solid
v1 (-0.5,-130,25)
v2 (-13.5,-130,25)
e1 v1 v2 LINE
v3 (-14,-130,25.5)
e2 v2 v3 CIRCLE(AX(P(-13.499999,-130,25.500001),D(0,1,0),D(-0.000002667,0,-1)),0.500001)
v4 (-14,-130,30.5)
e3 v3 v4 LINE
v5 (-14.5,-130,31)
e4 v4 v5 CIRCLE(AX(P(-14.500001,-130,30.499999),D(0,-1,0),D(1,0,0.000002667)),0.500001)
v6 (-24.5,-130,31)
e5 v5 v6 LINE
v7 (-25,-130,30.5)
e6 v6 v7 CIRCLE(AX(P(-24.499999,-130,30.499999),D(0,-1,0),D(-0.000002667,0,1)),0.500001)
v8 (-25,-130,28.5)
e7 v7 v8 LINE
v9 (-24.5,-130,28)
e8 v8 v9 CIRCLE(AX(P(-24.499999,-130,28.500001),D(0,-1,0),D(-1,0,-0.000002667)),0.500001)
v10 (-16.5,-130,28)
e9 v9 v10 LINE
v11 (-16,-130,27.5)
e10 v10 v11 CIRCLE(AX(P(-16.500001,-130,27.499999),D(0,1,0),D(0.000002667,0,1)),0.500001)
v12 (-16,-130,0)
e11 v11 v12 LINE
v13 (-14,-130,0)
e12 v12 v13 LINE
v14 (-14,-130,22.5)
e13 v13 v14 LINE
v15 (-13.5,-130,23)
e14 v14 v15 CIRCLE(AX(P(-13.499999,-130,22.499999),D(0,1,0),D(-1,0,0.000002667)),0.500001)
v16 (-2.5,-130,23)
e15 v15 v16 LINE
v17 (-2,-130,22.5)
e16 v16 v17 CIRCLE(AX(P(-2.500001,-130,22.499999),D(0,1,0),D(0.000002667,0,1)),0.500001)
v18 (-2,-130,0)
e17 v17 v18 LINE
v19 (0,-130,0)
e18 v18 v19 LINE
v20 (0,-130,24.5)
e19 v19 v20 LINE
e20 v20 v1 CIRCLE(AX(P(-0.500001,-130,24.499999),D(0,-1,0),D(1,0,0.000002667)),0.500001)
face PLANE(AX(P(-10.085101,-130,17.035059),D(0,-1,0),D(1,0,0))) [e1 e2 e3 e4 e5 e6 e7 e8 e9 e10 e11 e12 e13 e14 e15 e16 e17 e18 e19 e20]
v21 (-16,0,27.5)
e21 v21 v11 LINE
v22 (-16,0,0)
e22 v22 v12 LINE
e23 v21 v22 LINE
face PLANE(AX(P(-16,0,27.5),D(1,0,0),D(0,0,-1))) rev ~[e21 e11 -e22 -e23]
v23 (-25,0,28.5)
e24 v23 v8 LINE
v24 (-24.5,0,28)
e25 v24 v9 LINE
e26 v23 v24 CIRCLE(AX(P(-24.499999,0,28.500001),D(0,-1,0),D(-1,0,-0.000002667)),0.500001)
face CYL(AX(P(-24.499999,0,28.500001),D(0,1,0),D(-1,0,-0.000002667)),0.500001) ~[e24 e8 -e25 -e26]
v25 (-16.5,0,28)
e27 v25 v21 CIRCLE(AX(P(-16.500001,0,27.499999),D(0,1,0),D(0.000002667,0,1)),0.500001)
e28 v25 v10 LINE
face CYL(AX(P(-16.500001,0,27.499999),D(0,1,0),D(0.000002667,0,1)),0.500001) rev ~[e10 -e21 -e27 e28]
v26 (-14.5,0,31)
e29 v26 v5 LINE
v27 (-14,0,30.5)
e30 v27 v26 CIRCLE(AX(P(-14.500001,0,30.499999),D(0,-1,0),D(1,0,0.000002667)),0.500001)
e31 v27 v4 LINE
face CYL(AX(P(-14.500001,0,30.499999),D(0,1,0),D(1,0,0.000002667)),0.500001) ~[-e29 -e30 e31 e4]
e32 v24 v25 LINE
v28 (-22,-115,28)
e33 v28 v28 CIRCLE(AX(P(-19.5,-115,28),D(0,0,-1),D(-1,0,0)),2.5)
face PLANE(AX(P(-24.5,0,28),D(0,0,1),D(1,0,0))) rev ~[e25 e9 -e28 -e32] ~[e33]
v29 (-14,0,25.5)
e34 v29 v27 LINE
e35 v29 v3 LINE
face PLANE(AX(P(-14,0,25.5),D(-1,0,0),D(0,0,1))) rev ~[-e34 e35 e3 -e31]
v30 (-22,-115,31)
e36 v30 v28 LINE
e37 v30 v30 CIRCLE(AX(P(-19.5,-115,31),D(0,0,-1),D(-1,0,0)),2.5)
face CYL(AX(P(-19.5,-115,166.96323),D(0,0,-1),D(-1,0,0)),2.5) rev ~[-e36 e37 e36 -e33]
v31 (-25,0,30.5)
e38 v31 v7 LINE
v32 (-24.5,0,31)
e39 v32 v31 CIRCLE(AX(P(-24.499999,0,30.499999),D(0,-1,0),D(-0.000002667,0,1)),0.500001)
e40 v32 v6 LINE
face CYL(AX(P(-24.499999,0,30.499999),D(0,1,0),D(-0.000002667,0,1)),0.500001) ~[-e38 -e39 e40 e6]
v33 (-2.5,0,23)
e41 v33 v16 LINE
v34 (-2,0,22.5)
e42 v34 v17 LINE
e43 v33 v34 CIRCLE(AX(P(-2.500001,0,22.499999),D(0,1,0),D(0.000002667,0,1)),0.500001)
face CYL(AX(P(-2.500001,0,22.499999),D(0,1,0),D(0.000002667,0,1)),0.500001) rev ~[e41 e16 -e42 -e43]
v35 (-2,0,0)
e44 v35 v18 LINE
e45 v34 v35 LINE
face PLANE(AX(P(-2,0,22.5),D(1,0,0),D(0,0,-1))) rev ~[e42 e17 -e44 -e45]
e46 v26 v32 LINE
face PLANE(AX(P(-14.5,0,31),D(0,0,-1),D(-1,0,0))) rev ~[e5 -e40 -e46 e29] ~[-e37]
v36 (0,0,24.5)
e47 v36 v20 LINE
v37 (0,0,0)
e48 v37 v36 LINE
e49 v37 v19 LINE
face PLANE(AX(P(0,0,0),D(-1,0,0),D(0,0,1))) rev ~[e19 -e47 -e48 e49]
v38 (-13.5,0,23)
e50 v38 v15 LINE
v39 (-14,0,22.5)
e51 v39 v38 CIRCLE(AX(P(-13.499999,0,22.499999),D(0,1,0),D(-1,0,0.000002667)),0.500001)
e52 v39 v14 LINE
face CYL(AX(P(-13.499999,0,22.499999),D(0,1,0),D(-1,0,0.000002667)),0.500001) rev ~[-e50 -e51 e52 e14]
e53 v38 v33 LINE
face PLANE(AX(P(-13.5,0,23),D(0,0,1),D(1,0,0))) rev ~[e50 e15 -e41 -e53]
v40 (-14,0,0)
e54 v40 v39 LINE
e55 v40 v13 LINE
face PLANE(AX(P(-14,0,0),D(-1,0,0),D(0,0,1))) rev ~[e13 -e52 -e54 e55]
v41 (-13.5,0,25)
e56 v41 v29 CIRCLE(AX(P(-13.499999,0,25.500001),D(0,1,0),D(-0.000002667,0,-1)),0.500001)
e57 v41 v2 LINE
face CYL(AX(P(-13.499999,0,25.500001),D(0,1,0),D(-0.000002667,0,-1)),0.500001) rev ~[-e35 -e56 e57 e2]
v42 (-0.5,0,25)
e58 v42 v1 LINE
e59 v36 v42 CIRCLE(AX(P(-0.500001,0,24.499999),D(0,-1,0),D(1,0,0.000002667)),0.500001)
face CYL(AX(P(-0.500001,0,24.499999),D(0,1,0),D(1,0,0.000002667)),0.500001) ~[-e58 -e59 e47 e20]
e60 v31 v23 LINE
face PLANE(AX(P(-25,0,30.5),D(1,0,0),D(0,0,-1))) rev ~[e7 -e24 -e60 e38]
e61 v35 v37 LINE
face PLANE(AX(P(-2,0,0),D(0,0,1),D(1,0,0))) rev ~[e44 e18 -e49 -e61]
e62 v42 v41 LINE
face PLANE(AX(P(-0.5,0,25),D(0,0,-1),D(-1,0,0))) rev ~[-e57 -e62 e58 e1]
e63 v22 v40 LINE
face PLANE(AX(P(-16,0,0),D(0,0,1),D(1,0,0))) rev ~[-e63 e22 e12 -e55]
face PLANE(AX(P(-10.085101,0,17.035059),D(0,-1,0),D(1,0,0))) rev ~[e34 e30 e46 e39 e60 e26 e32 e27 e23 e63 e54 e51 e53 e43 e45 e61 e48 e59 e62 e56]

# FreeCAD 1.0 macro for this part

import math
import FreeCAD as App
import Part
import Sketcher

V = App.Vector

doc = App.newDocument("Part")
body = doc.addObject("PartDesign::Body", "Body")

sketch1 = body.newObject("Sketcher::SketchObject", "Sketch")
sketch1.AttachmentSupport = (doc.getObject("XZ_Plane"), [""])
sketch1.MapMode = "FlatFace"
sketch1.addGeometry(Part.LineSegment(V(-2, 0, 0), V(0, 0, 0)), False)
sketch1.addGeometry(Part.LineSegment(V(0, 0, 0), V(0, 24.5, 0)), False)
sketch1.addGeometry(Part.ArcOfCircle(Part.Circle(V(-0.500001, 24.499999, 0), V(0, 0, 1), 0.500001), math.radians(0.000153), math.radians(89.999847)), False)
sketch1.addGeometry(Part.LineSegment(V(-0.5, 25, 0), V(-13.5, 25, 0)), False)
sketch1.addGeometry(Part.ArcOfCircle(Part.Circle(V(-13.499999, 25.500001, 0), V(0, 0, 1), 0.500001), math.radians(-179.999847), math.radians(-90.000153)), False)
sketch1.addGeometry(Part.LineSegment(V(-14, 25.5, 0), V(-14, 30.5, 0)), False)
sketch1.addGeometry(Part.ArcOfCircle(Part.Circle(V(-14.500001, 30.499999, 0), V(0, 0, 1), 0.500001), math.radians(0.000153), math.radians(89.999847)), False)
sketch1.addGeometry(Part.LineSegment(V(-14.5, 31, 0), V(-24.5, 31, 0)), False)
sketch1.addGeometry(Part.ArcOfCircle(Part.Circle(V(-24.499999, 30.499999, 0), V(0, 0, 1), 0.500001), math.radians(90.000153), math.radians(179.999847)), False)
sketch1.addGeometry(Part.LineSegment(V(-25, 30.5, 0), V(-25, 28.5, 0)), False)
sketch1.addGeometry(Part.ArcOfCircle(Part.Circle(V(-24.499999, 28.500001, 0), V(0, 0, 1), 0.500001), math.radians(-179.999847), math.radians(-90.000153)), False)
sketch1.addGeometry(Part.LineSegment(V(-24.5, 28, 0), V(-16.5, 28, 0)), False)
sketch1.addGeometry(Part.ArcOfCircle(Part.Circle(V(-16.500001, 27.499999, 0), V(0, 0, 1), 0.500001), math.radians(0.000153), math.radians(89.999847)), False)
sketch1.addGeometry(Part.LineSegment(V(-16, 27.5, 0), V(-16, 0, 0)), False)
sketch1.addGeometry(Part.LineSegment(V(-16, 0, 0), V(-14, 0, 0)), False)
sketch1.addGeometry(Part.LineSegment(V(-14, 0, 0), V(-14, 22.5, 0)), False)
sketch1.addGeometry(Part.ArcOfCircle(Part.Circle(V(-13.499999, 22.499999, 0), V(0, 0, 1), 0.500001), math.radians(90.000153), math.radians(179.999847)), False)
sketch1.addGeometry(Part.LineSegment(V(-13.5, 23, 0), V(-2.5, 23, 0)), False)
sketch1.addGeometry(Part.ArcOfCircle(Part.Circle(V(-2.500001, 22.499999, 0), V(0, 0, 1), 0.500001), math.radians(0.000153), math.radians(89.999847)), False)
sketch1.addGeometry(Part.LineSegment(V(-2, 22.5, 0), V(-2, 0, 0)), False)
sketch1.addConstraint(Sketcher.Constraint("Coincident", 0, 2, 1, 1))
sketch1.addConstraint(Sketcher.Constraint("Coincident", 1, 2, 2, 1))
sketch1.addConstraint(Sketcher.Constraint("Coincident", 2, 2, 3, 1))
sketch1.addConstraint(Sketcher.Constraint("Coincident", 3, 2, 4, 2))
sketch1.addConstraint(Sketcher.Constraint("Coincident", 4, 1, 5, 1))
sketch1.addConstraint(Sketcher.Constraint("Coincident", 5, 2, 6, 1))
sketch1.addConstraint(Sketcher.Constraint("Coincident", 6, 2, 7, 1))
sketch1.addConstraint(Sketcher.Constraint("Coincident", 7, 2, 8, 1))
sketch1.addConstraint(Sketcher.Constraint("Coincident", 8, 2, 9, 1))
sketch1.addConstraint(Sketcher.Constraint("Coincident", 9, 2, 10, 1))
sketch1.addConstraint(Sketcher.Constraint("Coincident", 10, 2, 11, 1))
sketch1.addConstraint(Sketcher.Constraint("Coincident", 11, 2, 12, 2))
sketch1.addConstraint(Sketcher.Constraint("Coincident", 12, 1, 13, 1))
sketch1.addConstraint(Sketcher.Constraint("Coincident", 13, 2, 14, 1))
sketch1.addConstraint(Sketcher.Constraint("Coincident", 14, 2, 15, 1))
sketch1.addConstraint(Sketcher.Constraint("Coincident", 15, 2, 16, 2))
sketch1.addConstraint(Sketcher.Constraint("Coincident", 16, 1, 17, 1))
sketch1.addConstraint(Sketcher.Constraint("Coincident", 17, 2, 18, 2))
sketch1.addConstraint(Sketcher.Constraint("Coincident", 18, 1, 19, 1))
sketch1.addConstraint(Sketcher.Constraint("Coincident", 19, 2, 0, 1))
sketch1.addConstraint(Sketcher.Constraint("Horizontal", 0))
sketch1.addConstraint(Sketcher.Constraint("Vertical", 1))
sketch1.addConstraint(Sketcher.Constraint("Horizontal", 3))
sketch1.addConstraint(Sketcher.Constraint("Vertical", 5))
sketch1.addConstraint(Sketcher.Constraint("Horizontal", 7))
sketch1.addConstraint(Sketcher.Constraint("Vertical", 9))
sketch1.addConstraint(Sketcher.Constraint("Horizontal", 11))
sketch1.addConstraint(Sketcher.Constraint("Vertical", 13))
sketch1.addConstraint(Sketcher.Constraint("Horizontal", 14))
sketch1.addConstraint(Sketcher.Constraint("Vertical", 15))
sketch1.addConstraint(Sketcher.Constraint("Horizontal", 17))
sketch1.addConstraint(Sketcher.Constraint("Vertical", 19))
sketch1.addConstraint(Sketcher.Constraint("Coincident", 0, 2, -1, 1))
sketch1.addConstraint(Sketcher.Constraint("Equal", 2, 4))
sketch1.addConstraint(Sketcher.Constraint("Equal", 4, 6))
sketch1.addConstraint(Sketcher.Constraint("Equal", 6, 8))
sketch1.addConstraint(Sketcher.Constraint("Equal", 8, 10))
sketch1.addConstraint(Sketcher.Constraint("Equal", 10, 12))
sketch1.addConstraint(Sketcher.Constraint("Equal", 12, 16))
sketch1.addConstraint(Sketcher.Constraint("Equal", 16, 18))
sketch1.addConstraint(Sketcher.Constraint("PointOnObject", 13, 2, -1))
sketch1.addConstraint(Sketcher.Constraint("Horizontal", 2, 3, 1, 2))
sketch1.addConstraint(Sketcher.Constraint("Horizontal", 8, 3, 5, 2))
sketch1.addConstraint(Sketcher.Constraint("Horizontal", 5, 2, 8, 2))
sketch1.addConstraint(Sketcher.Constraint("Horizontal", 10, 3, 9, 2))
sketch1.addConstraint(Sketcher.Constraint("Horizontal", 18, 3, 15, 2))
sketch1.addConstraint(Sketcher.Constraint("Horizontal", 15, 2, 18, 1))
sketch1.addConstraint(Sketcher.Constraint("Vertical", 4, 3, 16, 3))
sketch1.addConstraint(Sketcher.Constraint("Vertical", 16, 3, 3, 2))
sketch1.addConstraint(Sketcher.Constraint("Vertical", 10, 3, 7, 2))
sketch1.addConstraint(Sketcher.Constraint("Vertical", 7, 2, 10, 2))
sketch1.addConstraint(Sketcher.Constraint("Vertical", 12, 3, 11, 2))
sketch1.addConstraint(Sketcher.Constraint("Vertical", 3, 2, 16, 1))
sketch1.addConstraint(Sketcher.Constraint("Vertical", 18, 3, 17, 2))
sketch1.addConstraint(Sketcher.Constraint("Equal", 0, 14))
sketch1.addConstraint(Sketcher.Constraint("Equal", 14, 9))
sketch1.addConstraint(Sketcher.Constraint("Radius", 2, 0.500001))
sketch1.addConstraint(Sketcher.Constraint("DistanceX", 0, 1, 0, 2, 2.0))
sketch1.addConstraint(Sketcher.Constraint("DistanceX", 3, 2, 3, 1, 13.0))
sketch1.addConstraint(Sketcher.Constraint("DistanceX", 7, 2, 7, 1, 10.0))
sketch1.addConstraint(Sketcher.Constraint("DistanceX", 11, 1, 11, 2, 8.0))
sketch1.addConstraint(Sketcher.Constraint("DistanceX", 17, 1, 17, 2, 11.0))
sketch1.addConstraint(Sketcher.Constraint("DistanceY", 5, 1, 5, 2, 5.0))
sketch1.addConstraint(Sketcher.Constraint("DistanceY", 1, 1, 1, 2, 24.5))
sketch1.addConstraint(Sketcher.Constraint("DistanceY", 13, 2, 13, 1, 27.5))
sketch1.addConstraint(Sketcher.Constraint("DistanceY", 15, 1, 15, 2, 22.5))
sketch1.addConstraint(Sketcher.Constraint("DistanceY", -1, 1, 6, 2, 31.0))
pad1 = body.newObject("PartDesign::Pad", "Pad")
pad1.Profile = sketch1
pad1.Length = 130

sketch2 = body.newObject("Sketcher::SketchObject", "Sketch001")
sketch2.AttachmentSupport = (doc.getObject("XY_Plane"), [""])
sketch2.MapMode = "FlatFace"
sketch2.AttachmentOffset = App.Placement(V(0, 0, 31), App.Rotation())
sketch2.addGeometry(Part.Circle(V(-19.5, -115, 0), V(0, 0, 1), 2.5), False)
sketch2.addConstraint(Sketcher.Constraint("Diameter", 0, 5.0))
sketch2.addConstraint(Sketcher.Constraint("DistanceY", 0, 3, -1, 1, 115.0))
sketch2.addConstraint(Sketcher.Constraint("DistanceX", 0, 3, -1, 1, 19.5))
doc.recompute()
hole = body.newObject("PartDesign::Hole", "Hole")
hole.Profile = sketch2
hole.ThreadType = "None"
hole.Diameter = 5
hole.DepthType = "ThroughAll"

doc.recompute()
